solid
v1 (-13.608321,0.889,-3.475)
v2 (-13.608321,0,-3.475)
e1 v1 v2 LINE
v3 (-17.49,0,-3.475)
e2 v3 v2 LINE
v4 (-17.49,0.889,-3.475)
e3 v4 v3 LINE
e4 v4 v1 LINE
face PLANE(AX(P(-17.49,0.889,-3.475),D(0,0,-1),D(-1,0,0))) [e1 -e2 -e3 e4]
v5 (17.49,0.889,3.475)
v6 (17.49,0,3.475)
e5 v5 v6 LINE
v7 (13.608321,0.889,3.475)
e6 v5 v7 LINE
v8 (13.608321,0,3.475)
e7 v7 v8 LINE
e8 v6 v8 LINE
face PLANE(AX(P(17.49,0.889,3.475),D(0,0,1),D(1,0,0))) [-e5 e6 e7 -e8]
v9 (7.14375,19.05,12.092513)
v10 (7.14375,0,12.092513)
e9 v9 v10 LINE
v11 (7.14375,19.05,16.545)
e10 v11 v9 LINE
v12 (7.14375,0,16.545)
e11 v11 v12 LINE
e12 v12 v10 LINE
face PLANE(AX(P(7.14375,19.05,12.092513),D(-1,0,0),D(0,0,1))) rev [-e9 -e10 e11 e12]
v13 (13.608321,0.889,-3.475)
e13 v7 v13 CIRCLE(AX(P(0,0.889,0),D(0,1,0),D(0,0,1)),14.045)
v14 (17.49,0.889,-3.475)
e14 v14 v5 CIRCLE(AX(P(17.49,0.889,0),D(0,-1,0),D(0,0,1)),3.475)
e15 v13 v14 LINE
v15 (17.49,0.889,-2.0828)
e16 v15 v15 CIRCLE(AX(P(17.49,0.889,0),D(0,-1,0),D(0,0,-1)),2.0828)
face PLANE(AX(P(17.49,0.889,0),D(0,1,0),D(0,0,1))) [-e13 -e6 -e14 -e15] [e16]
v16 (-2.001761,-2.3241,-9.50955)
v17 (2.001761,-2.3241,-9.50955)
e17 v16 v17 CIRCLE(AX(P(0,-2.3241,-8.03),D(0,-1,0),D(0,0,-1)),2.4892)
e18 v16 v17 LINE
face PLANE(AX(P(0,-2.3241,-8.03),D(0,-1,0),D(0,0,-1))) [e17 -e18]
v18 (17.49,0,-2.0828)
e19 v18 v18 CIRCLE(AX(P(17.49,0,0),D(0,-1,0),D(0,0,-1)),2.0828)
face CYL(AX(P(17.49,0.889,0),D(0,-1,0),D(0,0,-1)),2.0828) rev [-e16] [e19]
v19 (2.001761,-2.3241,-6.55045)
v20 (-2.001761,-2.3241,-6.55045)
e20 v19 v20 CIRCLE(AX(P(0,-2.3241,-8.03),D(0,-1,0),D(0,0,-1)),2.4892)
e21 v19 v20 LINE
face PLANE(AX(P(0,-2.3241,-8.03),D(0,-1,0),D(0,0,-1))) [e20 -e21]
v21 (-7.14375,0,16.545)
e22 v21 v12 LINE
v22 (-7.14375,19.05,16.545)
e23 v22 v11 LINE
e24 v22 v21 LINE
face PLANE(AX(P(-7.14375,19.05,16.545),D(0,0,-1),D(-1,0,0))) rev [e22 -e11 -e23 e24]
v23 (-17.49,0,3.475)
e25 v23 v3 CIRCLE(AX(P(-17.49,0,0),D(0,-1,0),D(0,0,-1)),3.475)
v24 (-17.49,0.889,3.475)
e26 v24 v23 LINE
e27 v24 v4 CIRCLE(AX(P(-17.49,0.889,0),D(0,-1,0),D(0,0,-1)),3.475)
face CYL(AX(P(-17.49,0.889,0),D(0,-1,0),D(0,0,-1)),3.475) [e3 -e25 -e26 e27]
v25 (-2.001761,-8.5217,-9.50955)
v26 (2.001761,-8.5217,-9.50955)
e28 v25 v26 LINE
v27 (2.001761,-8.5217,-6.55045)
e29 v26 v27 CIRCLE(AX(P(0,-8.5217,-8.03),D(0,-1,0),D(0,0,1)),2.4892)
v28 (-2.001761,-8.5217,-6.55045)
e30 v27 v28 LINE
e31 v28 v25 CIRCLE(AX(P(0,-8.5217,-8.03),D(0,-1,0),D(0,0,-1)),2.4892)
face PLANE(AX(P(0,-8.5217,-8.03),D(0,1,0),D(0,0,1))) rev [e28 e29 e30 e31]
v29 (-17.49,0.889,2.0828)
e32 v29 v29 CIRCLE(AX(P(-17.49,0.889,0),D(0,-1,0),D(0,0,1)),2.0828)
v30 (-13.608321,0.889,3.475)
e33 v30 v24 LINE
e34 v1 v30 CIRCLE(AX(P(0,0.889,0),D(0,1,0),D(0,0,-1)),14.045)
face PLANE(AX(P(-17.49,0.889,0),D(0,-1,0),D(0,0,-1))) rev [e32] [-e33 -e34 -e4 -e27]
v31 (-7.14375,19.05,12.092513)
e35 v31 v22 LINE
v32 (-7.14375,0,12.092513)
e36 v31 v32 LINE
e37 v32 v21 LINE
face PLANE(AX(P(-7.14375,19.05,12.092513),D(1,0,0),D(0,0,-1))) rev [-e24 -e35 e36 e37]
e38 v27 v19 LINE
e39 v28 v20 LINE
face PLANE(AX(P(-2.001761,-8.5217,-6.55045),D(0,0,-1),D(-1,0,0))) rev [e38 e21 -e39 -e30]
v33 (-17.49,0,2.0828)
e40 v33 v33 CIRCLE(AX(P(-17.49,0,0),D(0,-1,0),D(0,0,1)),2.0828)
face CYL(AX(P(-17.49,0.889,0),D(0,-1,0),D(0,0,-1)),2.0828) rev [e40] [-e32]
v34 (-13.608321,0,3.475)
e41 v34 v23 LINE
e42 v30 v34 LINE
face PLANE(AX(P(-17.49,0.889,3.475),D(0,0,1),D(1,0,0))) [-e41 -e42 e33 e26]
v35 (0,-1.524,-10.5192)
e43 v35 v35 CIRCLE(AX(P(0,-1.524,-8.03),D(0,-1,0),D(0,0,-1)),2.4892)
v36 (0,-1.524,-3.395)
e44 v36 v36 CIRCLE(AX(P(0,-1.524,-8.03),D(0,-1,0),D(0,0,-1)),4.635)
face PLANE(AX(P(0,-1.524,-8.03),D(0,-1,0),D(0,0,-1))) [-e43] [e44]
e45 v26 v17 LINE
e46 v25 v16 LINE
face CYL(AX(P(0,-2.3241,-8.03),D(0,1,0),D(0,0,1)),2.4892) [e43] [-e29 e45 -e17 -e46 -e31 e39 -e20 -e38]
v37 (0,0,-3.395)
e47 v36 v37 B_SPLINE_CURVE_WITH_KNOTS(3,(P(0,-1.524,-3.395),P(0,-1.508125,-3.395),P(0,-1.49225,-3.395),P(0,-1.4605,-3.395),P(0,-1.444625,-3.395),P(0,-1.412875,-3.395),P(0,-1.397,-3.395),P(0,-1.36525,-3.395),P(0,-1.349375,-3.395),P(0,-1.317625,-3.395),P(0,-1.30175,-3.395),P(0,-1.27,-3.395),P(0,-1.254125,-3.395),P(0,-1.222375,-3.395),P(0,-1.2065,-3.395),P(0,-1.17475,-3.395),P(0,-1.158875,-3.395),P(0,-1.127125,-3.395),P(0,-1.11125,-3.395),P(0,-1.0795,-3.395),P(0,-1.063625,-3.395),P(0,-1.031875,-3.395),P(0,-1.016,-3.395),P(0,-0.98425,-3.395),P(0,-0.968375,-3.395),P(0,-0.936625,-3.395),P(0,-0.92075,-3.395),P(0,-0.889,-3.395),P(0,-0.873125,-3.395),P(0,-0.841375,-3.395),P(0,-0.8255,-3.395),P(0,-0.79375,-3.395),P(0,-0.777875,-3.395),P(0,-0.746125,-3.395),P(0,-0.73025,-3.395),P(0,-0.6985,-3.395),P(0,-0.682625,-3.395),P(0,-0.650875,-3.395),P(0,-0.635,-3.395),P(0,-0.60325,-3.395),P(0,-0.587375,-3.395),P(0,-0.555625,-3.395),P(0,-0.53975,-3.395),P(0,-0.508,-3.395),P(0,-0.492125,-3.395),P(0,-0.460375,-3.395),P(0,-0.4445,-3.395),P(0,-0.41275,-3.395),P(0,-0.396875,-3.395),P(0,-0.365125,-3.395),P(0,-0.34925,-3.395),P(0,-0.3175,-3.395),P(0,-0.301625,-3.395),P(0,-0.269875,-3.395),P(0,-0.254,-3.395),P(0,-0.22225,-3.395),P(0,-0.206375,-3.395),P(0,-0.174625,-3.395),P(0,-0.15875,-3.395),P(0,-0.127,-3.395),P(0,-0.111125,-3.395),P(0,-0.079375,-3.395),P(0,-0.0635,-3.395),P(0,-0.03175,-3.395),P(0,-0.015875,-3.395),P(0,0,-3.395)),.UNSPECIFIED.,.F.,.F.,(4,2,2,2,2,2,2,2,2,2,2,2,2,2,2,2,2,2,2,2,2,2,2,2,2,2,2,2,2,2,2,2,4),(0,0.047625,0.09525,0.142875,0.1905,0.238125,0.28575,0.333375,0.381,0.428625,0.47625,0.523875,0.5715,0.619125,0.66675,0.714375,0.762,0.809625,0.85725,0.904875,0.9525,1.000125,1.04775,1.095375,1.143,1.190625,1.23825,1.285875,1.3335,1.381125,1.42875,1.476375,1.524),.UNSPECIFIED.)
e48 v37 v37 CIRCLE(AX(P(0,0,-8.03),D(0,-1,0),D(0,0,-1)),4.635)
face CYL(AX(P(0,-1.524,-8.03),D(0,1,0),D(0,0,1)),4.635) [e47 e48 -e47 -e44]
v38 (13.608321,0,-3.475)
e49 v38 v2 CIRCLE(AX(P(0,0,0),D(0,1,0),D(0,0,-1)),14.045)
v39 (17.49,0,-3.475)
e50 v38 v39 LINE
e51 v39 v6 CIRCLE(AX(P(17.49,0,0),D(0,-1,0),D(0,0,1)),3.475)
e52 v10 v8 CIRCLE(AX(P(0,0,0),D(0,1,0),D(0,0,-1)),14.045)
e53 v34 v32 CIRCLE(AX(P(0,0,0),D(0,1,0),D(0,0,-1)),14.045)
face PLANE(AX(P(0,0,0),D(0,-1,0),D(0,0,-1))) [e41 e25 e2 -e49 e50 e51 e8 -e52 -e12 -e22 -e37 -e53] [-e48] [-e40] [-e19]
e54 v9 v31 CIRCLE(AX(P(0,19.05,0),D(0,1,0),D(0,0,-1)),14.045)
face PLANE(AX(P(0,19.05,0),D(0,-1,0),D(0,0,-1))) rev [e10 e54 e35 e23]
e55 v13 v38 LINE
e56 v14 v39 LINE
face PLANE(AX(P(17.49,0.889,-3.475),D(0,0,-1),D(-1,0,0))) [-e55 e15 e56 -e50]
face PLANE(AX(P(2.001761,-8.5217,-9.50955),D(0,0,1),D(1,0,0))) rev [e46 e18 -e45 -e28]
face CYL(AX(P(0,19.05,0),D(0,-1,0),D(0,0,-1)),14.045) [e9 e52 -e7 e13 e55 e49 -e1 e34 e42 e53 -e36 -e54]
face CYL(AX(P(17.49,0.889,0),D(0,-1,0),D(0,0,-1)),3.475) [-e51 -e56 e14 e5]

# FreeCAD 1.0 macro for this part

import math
import FreeCAD as App
import Part
import Sketcher
Q = App.Units.Quantity

doc = App.newDocument("Part")
params = doc.addObject("Spreadsheet::Sheet", "Params")
for row, (alias, value) in enumerate([
    ("sketch1_width", "0.5625 in"),
    ("pad1_length", "0.75 in"),
    ("sketch2_diameter", "0.164 in"),
    ("pad2_length", "0.035 in"),
    ("pad3_length", "0.06 in"),
    ("sketch4_diameter", "0.196 in"),
    ("pad4_length", "0.0315 in"),
    ("sketch5_radius", "0.098 in"),
    ("pad5_length", "0.244 in"),
], start=1):
    params.set(f"A{row}", alias)
    params.set(f"B{row}", "=" + value)
    params.setAlias(f"B{row}", alias)

body = doc.addObject("PartDesign::Body", "Body")

# Sketch on XZ plane
sketch1 = body.newObject("Sketcher::SketchObject", "Sketch")
sketch1.AttachmentSupport = (doc.getObject("XZ_Plane"), [""])
sketch1.MapMode = "FlatFace"
sketch1.addGeometry([
    Part.LineSegment(App.Vector(-7.1, 16.5, 0), App.Vector(7.1, 16.5, 0)),
    Part.LineSegment(App.Vector(7.1, 16.5, 0), App.Vector(7.1, 12.1, 0)),
    Part.ArcOfCircle(Part.Circle(App.Vector(0, 0, 0), App.Vector(0, 0, 1), 14), math.radians(121), math.radians(419)),
    Part.LineSegment(App.Vector(-7.1, 12.1, 0), App.Vector(-7.1, 16.5, 0)),
], False)
sketch1.addConstraint([
    Sketcher.Constraint("Coincident", 0, 2, 1, 1),
    Sketcher.Constraint("Coincident", 1, 2, 2, 2),
    Sketcher.Constraint("Coincident", 2, 1, 3, 1),
    Sketcher.Constraint("Coincident", 3, 2, 0, 1),
    Sketcher.Constraint("Horizontal", 0),
    Sketcher.Constraint("Vertical", 1),
    Sketcher.Constraint("Vertical", 3),
    Sketcher.Constraint("Coincident", 2, 3, -1, 1),
    Sketcher.Constraint("Horizontal", 1, 2, 2, 1),
    Sketcher.Constraint("DistanceX", 0, 1, 0, 2, Q("0.5625 in")),
    Sketcher.Constraint("Radius", 2, Q("14.045 mm")),
    Sketcher.Constraint("DistanceY", -1, 1, 0, 2, Q("16.545 mm")),
])
sketch1.setExpression("Constraints[9]", "Params.sketch1_width")
pad1 = body.newObject("PartDesign::Pad", "Pad")
pad1.Profile = sketch1
pad1.setExpression("Length", "Params.pad1_length")
pad1.Reversed = True

# Sketch on XZ plane
sketch2 = body.newObject("Sketcher::SketchObject", "Sketch001")
sketch2.AttachmentSupport = (doc.getObject("XZ_Plane"), [""])
sketch2.MapMode = "FlatFace"
sketch2.addGeometry([
    Part.LineSegment(App.Vector(-13.6, 3.5, 0), App.Vector(-17.5, 3.5, 0)),  # 0
    Part.ArcOfCircle(Part.Circle(App.Vector(-17.5, 0, 0), App.Vector(0, 0, 1), 3.5), math.radians(90), math.radians(270)),  # 1
    Part.LineSegment(App.Vector(-17.5, -3.5, 0), App.Vector(-13.6, -3.5, 0)),  # 2
    Part.ArcOfCircle(Part.Circle(App.Vector(0, 0, 0), App.Vector(0, 0, 1), 14), math.radians(166), math.radians(194)),  # 3
    Part.Circle(App.Vector(-17.5, 0, 0), App.Vector(0, 0, 1), 2.1),  # 4
    Part.LineSegment(App.Vector(17.5, 3.5, 0), App.Vector(13.6, 3.5, 0)),  # 5
    Part.ArcOfCircle(Part.Circle(App.Vector(0, 0, 0), App.Vector(0, 0, 1), 14), math.radians(-14), math.radians(14)),  # 6
    Part.LineSegment(App.Vector(13.6, -3.5, 0), App.Vector(17.5, -3.5, 0)),  # 7
    Part.ArcOfCircle(Part.Circle(App.Vector(17.5, 0, 0), App.Vector(0, 0, 1), 3.5), math.radians(-90), math.radians(90)),  # 8
    Part.Circle(App.Vector(17.5, 0, 0), App.Vector(0, 0, 1), 2.1),  # 9
], False)
sketch2.addConstraint([
    Sketcher.Constraint("Tangent", 0, 2, 1, 1),
    Sketcher.Constraint("Tangent", 1, 2, 2, 1),
    Sketcher.Constraint("Coincident", 2, 2, 3, 2),
    Sketcher.Constraint("Coincident", 3, 1, 0, 1),
    Sketcher.Constraint("Coincident", 5, 2, 6, 2),
    Sketcher.Constraint("Coincident", 6, 1, 7, 1),
    Sketcher.Constraint("Tangent", 7, 2, 8, 1),
    Sketcher.Constraint("Tangent", 8, 2, 5, 1),
    Sketcher.Constraint("Horizontal", 0),
    Sketcher.Constraint("Horizontal", 2),
    Sketcher.Constraint("Horizontal", 5),
    Sketcher.Constraint("Horizontal", 7),
    Sketcher.Constraint("Coincident", 3, 3, -1, 1),
    Sketcher.Constraint("Coincident", 6, 3, -1, 1),
    Sketcher.Constraint("Coincident", 4, 3, 1, 3),
    Sketcher.Constraint("Coincident", 9, 3, 8, 3),
    Sketcher.Constraint("Equal", 3, 6),
    Sketcher.Constraint("Equal", 1, 8),
    Sketcher.Constraint("Equal", 4, 9),
    Sketcher.Constraint("Symmetric", 1, 3, 8, 3, -1, 1),
    Sketcher.Constraint("PointOnObject", 1, 3, -1),
    Sketcher.Constraint("Diameter", 4, Q("0.164 in")),
    Sketcher.Constraint("Radius", 1, Q("3.475 mm")),
    Sketcher.Constraint("Radius", 3, Q("14.045 mm")),
    Sketcher.Constraint("DistanceX", 0, 2, 0, 1, Q("3.881679 mm")),
])
sketch2.setExpression("Constraints[21]", "Params.sketch2_diameter")
pad2 = body.newObject("PartDesign::Pad", "Pad001")
pad2.Profile = sketch2
pad2.setExpression("Length", "Params.pad2_length")
pad2.Reversed = True

# Sketch on XZ plane
sketch3 = body.newObject("Sketcher::SketchObject", "Sketch002")
sketch3.AttachmentSupport = (doc.getObject("XZ_Plane"), [""])
sketch3.MapMode = "FlatFace"
sketch3.addGeometry(Part.Circle(App.Vector(0, -8, 0), App.Vector(0, 0, 1), 4.6), False)
sketch3.addConstraint([
    Sketcher.Constraint("PointOnObject", 0, 3, -2),
    Sketcher.Constraint("Diameter", 0, Q("9.27 mm")),
    Sketcher.Constraint("DistanceY", 0, 3, -1, 1, Q("8.03 mm")),
])
pad3 = body.newObject("PartDesign::Pad", "Pad002")
pad3.Profile = sketch3
pad3.setExpression("Length", "Params.pad3_length")

# Sketch on XZ plane
sketch4 = body.newObject("Sketcher::SketchObject", "Sketch003")
sketch4.AttachmentSupport = (doc.getObject("XZ_Plane"), [""])
sketch4.MapMode = "FlatFace"
sketch4.AttachmentOffset = App.Placement(App.Vector(0, 0, 0.06 * 25.4), App.Rotation())
sketch4.addGeometry(Part.Circle(App.Vector(0, -8, 0), App.Vector(0, 0, 1), 2.5), False)
sketch4.addConstraint([
    Sketcher.Constraint("PointOnObject", 0, 3, -2),
    Sketcher.Constraint("Diameter", 0, Q("0.196 in")),
    Sketcher.Constraint("DistanceY", 0, 3, -1, 1, Q("8.03 mm")),
])
sketch4.setExpression("Constraints[1]", "Params.sketch4_diameter")
pad4 = body.newObject("PartDesign::Pad", "Pad003")
pad4.Profile = sketch4
pad4.setExpression("Length", "Params.pad4_length")

# Sketch on XZ plane
sketch5 = body.newObject("Sketcher::SketchObject", "Sketch004")
sketch5.AttachmentSupport = (doc.getObject("XZ_Plane"), [""])
sketch5.MapMode = "FlatFace"
sketch5.AttachmentOffset = App.Placement(App.Vector(0, 0, 0.0915 * 25.4), App.Rotation())
sketch5.addGeometry([
    Part.LineSegment(App.Vector(-2, -9.5, 0), App.Vector(2, -9.5, 0)),
    Part.ArcOfCircle(Part.Circle(App.Vector(0, -8, 0), App.Vector(0, 0, 1), 2.5), math.radians(-36), math.radians(36)),
    Part.LineSegment(App.Vector(2, -6.6, 0), App.Vector(-2, -6.6, 0)),
    Part.ArcOfCircle(Part.Circle(App.Vector(0, -8, 0), App.Vector(0, 0, 1), 2.5), math.radians(144), math.radians(216)),
], False)
sketch5.addConstraint([
    Sketcher.Constraint("Coincident", 0, 2, 1, 1),
    Sketcher.Constraint("Coincident", 1, 2, 2, 1),
    Sketcher.Constraint("Coincident", 2, 2, 3, 1),
    Sketcher.Constraint("Coincident", 3, 2, 0, 1),
    Sketcher.Constraint("Horizontal", 0),
    Sketcher.Constraint("Horizontal", 2),
    Sketcher.Constraint("Coincident", 3, 3, 1, 3),
    Sketcher.Constraint("Equal", 1, 3),
    Sketcher.Constraint("PointOnObject", 1, 3, -2),
    Sketcher.Constraint("Vertical", 0, 2, 1, 2),
    Sketcher.Constraint("Radius", 1, Q("0.098 in")),
    Sketcher.Constraint("DistanceY", 0, 2, 1, 2, Q("0.1165 in")),
    Sketcher.Constraint("DistanceY", 1, 3, -1, 1, Q("8.03 mm")),
])
sketch5.setExpression("Constraints[10]", "Params.sketch5_radius")
pad5 = body.newObject("PartDesign::Pad", "Pad004")
pad5.Profile = sketch5
pad5.setExpression("Length", "Params.pad5_length")

doc.recompute()
